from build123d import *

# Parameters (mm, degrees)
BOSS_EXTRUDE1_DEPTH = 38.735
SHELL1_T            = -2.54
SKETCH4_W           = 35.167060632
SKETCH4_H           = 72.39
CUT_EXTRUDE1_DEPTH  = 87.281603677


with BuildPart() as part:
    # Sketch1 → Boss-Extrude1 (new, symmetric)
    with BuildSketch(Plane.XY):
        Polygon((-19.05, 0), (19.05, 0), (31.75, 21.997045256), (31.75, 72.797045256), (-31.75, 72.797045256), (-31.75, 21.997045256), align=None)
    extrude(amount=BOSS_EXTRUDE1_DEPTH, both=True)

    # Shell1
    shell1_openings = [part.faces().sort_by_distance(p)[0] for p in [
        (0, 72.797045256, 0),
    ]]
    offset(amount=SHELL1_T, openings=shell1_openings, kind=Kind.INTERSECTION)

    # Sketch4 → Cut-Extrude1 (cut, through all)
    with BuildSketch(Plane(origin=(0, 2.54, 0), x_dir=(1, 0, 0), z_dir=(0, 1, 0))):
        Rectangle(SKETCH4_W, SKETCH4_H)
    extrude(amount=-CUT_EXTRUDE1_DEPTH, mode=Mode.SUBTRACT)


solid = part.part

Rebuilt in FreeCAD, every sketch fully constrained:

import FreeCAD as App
import Part
import Sketcher
Q = App.Units.Quantity


def faces_at(feature, points):
    """Names of the faces that lie closest to the given points."""
    faces = feature.Shape.Faces
    near = lambda p: min(range(len(faces)), key=lambda i: faces[i].distToShape(Part.Vertex(*p))[0])
    return sorted({f"Face{near(p) + 1}" for p in points})

doc = App.newDocument("Part")
body = doc.addObject("PartDesign::Body", "Body")

sketch1 = body.newObject("Sketcher::SketchObject", "Sketch")
sketch1.AttachmentSupport = (doc.getObject("XY_Plane"), [""])
sketch1.MapMode = "FlatFace"
sketch1.addGeometry([
    Part.LineSegment(App.Vector(-19, 0, 0), App.Vector(19, 0, 0)),
    Part.LineSegment(App.Vector(19, 0, 0), App.Vector(32, 22, 0)),
    Part.LineSegment(App.Vector(32, 22, 0), App.Vector(32, 73, 0)),
    Part.LineSegment(App.Vector(32, 73, 0), App.Vector(-32, 73, 0)),
    Part.LineSegment(App.Vector(-32, 73, 0), App.Vector(-32, 22, 0)),
    Part.LineSegment(App.Vector(-32, 22, 0), App.Vector(-19, 0, 0)),
], False)
sketch1.addConstraint([
    Sketcher.Constraint("Coincident", 0, 2, 1, 1),
    Sketcher.Constraint("Coincident", 1, 2, 2, 1),
    Sketcher.Constraint("Coincident", 2, 2, 3, 1),
    Sketcher.Constraint("Coincident", 3, 2, 4, 1),
    Sketcher.Constraint("Coincident", 4, 2, 5, 1),
    Sketcher.Constraint("Coincident", 5, 2, 0, 1),
    Sketcher.Constraint("Horizontal", 0),
    Sketcher.Constraint("Vertical", 2),
    Sketcher.Constraint("Horizontal", 3),
    Sketcher.Constraint("Vertical", 4),
    Sketcher.Constraint("Symmetric", 0, 2, 5, 2, -1, 1),
    Sketcher.Constraint("Symmetric", 1, 2, 4, 2, -2),
    Sketcher.Constraint("DistanceY", 2, 1, 2, 2, Q("2 in")),
    Sketcher.Constraint("Distance", 1, Q("1 in")),
    Sketcher.Constraint("DistanceX", 0, 1, 0, 2, Q("1.5 in")),
    Sketcher.Constraint("DistanceX", 3, 2, 3, 1, Q("2.5 in")),
])
pad1 = body.newObject("PartDesign::Pad", "Pad")
pad1.Profile = sketch1
pad1.Length = Q("3.05 in")
pad1.Midplane = True
doc.recompute()

thickness = body.newObject("PartDesign::Thickness", "Thickness")
thickness.Base = (pad1, faces_at(pad1, [(0, 72.797, 0)]))
thickness.Value = Q("0.1 in")
thickness.Reversed = True
thickness.Join = "Intersection"

sketch2 = body.newObject("Sketcher::SketchObject", "Sketch001")
sketch2.AttachmentSupport = (doc.getObject("XZ_Plane"), [""])
sketch2.MapMode = "FlatFace"
sketch2.AttachmentOffset = App.Placement(App.Vector(0, 0, -0.1 * 25.4), App.Rotation())
sketch2.addGeometry([
    Part.LineSegment(App.Vector(-18, -36, 0), App.Vector(-18, 36, 0)),
    Part.LineSegment(App.Vector(-18, 36, 0), App.Vector(18, 36, 0)),
    Part.LineSegment(App.Vector(18, 36, 0), App.Vector(18, -36, 0)),
    Part.LineSegment(App.Vector(18, -36, 0), App.Vector(-18, -36, 0)),
], False)
sketch2.addConstraint([
    Sketcher.Constraint("Coincident", 0, 2, 1, 1),
    Sketcher.Constraint("Coincident", 1, 2, 2, 1),
    Sketcher.Constraint("Coincident", 2, 2, 3, 1),
    Sketcher.Constraint("Coincident", 3, 2, 0, 1),
    Sketcher.Constraint("Vertical", 0),
    Sketcher.Constraint("Horizontal", 1),
    Sketcher.Constraint("Vertical", 2),
    Sketcher.Constraint("Horizontal", 3),
    Sketcher.Constraint("Symmetric", 0, 2, 2, 2, -1, 1),
    Sketcher.Constraint("DistanceY", 0, 1, 0, 2, Q("2.85 in")),
    Sketcher.Constraint("DistanceX", 1, 1, 1, 2, 35.167061),
])
pocket1 = body.newObject("PartDesign::Pocket", "Pocket")
pocket1.Profile = sketch2
pocket1.Type = "ThroughAll"
pocket1.Reversed = True

doc.recompute()
